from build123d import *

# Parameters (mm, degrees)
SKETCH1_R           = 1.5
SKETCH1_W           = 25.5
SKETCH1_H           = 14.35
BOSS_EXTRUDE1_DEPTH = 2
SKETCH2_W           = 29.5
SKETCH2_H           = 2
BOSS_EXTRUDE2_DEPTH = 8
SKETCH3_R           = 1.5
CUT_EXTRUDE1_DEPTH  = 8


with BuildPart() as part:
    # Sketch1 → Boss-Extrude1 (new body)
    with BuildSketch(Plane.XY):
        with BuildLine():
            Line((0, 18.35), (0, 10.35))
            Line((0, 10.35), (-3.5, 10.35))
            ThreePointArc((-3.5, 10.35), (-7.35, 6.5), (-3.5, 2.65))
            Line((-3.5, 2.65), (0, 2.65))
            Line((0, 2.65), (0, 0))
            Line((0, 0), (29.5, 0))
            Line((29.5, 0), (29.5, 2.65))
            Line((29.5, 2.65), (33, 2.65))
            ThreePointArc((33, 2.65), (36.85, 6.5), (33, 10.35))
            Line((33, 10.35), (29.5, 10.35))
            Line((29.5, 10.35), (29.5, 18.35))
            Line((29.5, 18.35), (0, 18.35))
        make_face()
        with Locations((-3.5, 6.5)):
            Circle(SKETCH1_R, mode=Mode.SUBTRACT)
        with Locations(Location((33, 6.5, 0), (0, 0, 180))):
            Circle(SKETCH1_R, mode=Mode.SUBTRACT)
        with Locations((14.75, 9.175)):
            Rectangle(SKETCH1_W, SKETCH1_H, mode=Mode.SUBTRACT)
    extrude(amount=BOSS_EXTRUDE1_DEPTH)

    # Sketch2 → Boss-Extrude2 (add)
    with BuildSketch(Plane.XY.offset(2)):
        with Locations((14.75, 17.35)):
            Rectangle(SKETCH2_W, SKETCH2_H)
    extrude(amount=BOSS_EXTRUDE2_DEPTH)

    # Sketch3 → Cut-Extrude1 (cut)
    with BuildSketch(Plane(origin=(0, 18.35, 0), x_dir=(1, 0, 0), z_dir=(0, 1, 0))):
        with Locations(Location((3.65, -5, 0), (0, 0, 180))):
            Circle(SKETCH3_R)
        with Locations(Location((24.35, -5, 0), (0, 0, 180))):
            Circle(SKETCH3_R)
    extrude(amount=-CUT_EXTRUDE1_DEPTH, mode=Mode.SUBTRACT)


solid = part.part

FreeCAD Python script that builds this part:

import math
import FreeCAD as App
import Part
import Sketcher
Q = App.Units.Quantity


def add_polygon(sketch, points):
    """Adds a closed chain of lines whose ends are joined by coincident constraints."""
    first, n = sketch.GeometryCount, len(points)
    for a, b in zip(points, points[1:] + points[:1]):
        sketch.addGeometry(Part.LineSegment(App.Vector(*a, 0), App.Vector(*b, 0)), False)
    for i in range(n):
        sketch.addConstraint(Sketcher.Constraint("Coincident", first + i, 2, first + (i + 1) % n, 1))

doc = App.newDocument("Part")
body = doc.addObject("PartDesign::Body", "Body")

# Sketch on XY plane
sketch1 = body.newObject("Sketcher::SketchObject", "Sketch")
sketch1.AttachmentSupport = (doc.getObject("XY_Plane"), [""])
sketch1.MapMode = "FlatFace"
sketch1.addGeometry(Part.LineSegment(App.Vector(0, 18.4, 0), App.Vector(0, 10.3, 0)), False)  # 0
sketch1.addGeometry(Part.LineSegment(App.Vector(0, 10.3, 0), App.Vector(-3.5, 10.3, 0)), False)  # 1
sketch1.addGeometry(Part.ArcOfCircle(Part.Circle(App.Vector(-3.5, 6.5, 0), App.Vector(0, 0, 1), 3.9), math.radians(90), math.radians(270)), False)  # 2
sketch1.addGeometry(Part.LineSegment(App.Vector(-3.5, 2.6, 0), App.Vector(0, 2.6, 0)), False)  # 3
sketch1.addGeometry(Part.LineSegment(App.Vector(0, 2.6, 0), App.Vector(0, 0, 0)), False)  # 4
sketch1.addGeometry(Part.LineSegment(App.Vector(0, 0, 0), App.Vector(29.5, 0, 0)), False)  # 5
sketch1.addGeometry(Part.LineSegment(App.Vector(29.5, 0, 0), App.Vector(29.5, 2.6, 0)), False)  # 6
sketch1.addGeometry(Part.LineSegment(App.Vector(29.5, 2.6, 0), App.Vector(33, 2.6, 0)), False)  # 7
sketch1.addGeometry(Part.ArcOfCircle(Part.Circle(App.Vector(33, 6.5, 0), App.Vector(0, 0, 1), 3.9), math.radians(-90), math.radians(90)), False)  # 8
sketch1.addGeometry(Part.LineSegment(App.Vector(33, 10.3, 0), App.Vector(29.5, 10.3, 0)), False)  # 9
sketch1.addGeometry(Part.LineSegment(App.Vector(29.5, 10.3, 0), App.Vector(29.5, 18.4, 0)), False)  # 10
sketch1.addGeometry(Part.LineSegment(App.Vector(29.5, 18.4, 0), App.Vector(0, 18.4, 0)), False)  # 11
sketch1.addGeometry(Part.Circle(App.Vector(-3.5, 6.5, 0), App.Vector(0, 0, 1), 1.5), False)  # 12
sketch1.addGeometry(Part.Circle(App.Vector(33, 6.5, 0), App.Vector(0, 0, 1), 1.5), False)  # 13
add_polygon(sketch1, [(27.5, 2), (2, 2), (2, 16.4), (27.5, 16.4)])  # lines 14-17
sketch1.addConstraint(Sketcher.Constraint("Coincident", 0, 2, 1, 1))
sketch1.addConstraint(Sketcher.Constraint("Tangent", 1, 2, 2, 1))
sketch1.addConstraint(Sketcher.Constraint("Tangent", 2, 2, 3, 1))
sketch1.addConstraint(Sketcher.Constraint("Coincident", 3, 2, 4, 1))
sketch1.addConstraint(Sketcher.Constraint("Coincident", 4, 2, 5, 1))
sketch1.addConstraint(Sketcher.Constraint("Coincident", 5, 2, 6, 1))
sketch1.addConstraint(Sketcher.Constraint("Coincident", 6, 2, 7, 1))
sketch1.addConstraint(Sketcher.Constraint("Tangent", 7, 2, 8, 1))
sketch1.addConstraint(Sketcher.Constraint("Tangent", 8, 2, 9, 1))
sketch1.addConstraint(Sketcher.Constraint("Coincident", 9, 2, 10, 1))
sketch1.addConstraint(Sketcher.Constraint("Coincident", 10, 2, 11, 1))
sketch1.addConstraint(Sketcher.Constraint("Coincident", 11, 2, 0, 1))
sketch1.addConstraint(Sketcher.Constraint("Vertical", 0))
sketch1.addConstraint(Sketcher.Constraint("Horizontal", 1))
sketch1.addConstraint(Sketcher.Constraint("Horizontal", 3))
sketch1.addConstraint(Sketcher.Constraint("Vertical", 4))
sketch1.addConstraint(Sketcher.Constraint("Horizontal", 5))
sketch1.addConstraint(Sketcher.Constraint("Vertical", 6))
sketch1.addConstraint(Sketcher.Constraint("Horizontal", 7))
sketch1.addConstraint(Sketcher.Constraint("Horizontal", 9))
sketch1.addConstraint(Sketcher.Constraint("Vertical", 10))
sketch1.addConstraint(Sketcher.Constraint("Horizontal", 11))
sketch1.addConstraint(Sketcher.Constraint("Horizontal", 14))
sketch1.addConstraint(Sketcher.Constraint("Vertical", 15))
sketch1.addConstraint(Sketcher.Constraint("Horizontal", 16))
sketch1.addConstraint(Sketcher.Constraint("Vertical", 17))
sketch1.addConstraint(Sketcher.Constraint("Coincident", 4, 2, -1, 1))
sketch1.addConstraint(Sketcher.Constraint("Coincident", 12, 3, 2, 3))
sketch1.addConstraint(Sketcher.Constraint("Coincident", 13, 3, 8, 3))
sketch1.addConstraint(Sketcher.Constraint("Equal", 2, 8))
sketch1.addConstraint(Sketcher.Constraint("Equal", 12, 13))
sketch1.addConstraint(Sketcher.Constraint("PointOnObject", 0, 2, -2))
sketch1.addConstraint(Sketcher.Constraint("Horizontal", 2, 3, 8, 3))
sketch1.addConstraint(Sketcher.Constraint("Vertical", 6, 2, 9, 2))
sketch1.addConstraint(Sketcher.Constraint("Equal", 3, 7))
sketch1.addConstraint(Sketcher.Constraint("Diameter", 12, Q("3 mm")))
sketch1.addConstraint(Sketcher.Constraint("DistanceY", 0, 2, 0, 1, Q("8 mm")))
sketch1.addConstraint(Sketcher.Constraint("Radius", 2, Q("3.85 mm")))
sketch1.addConstraint(Sketcher.Constraint("DistanceX", 1, 2, 1, 1, Q("3.5 mm")))
sketch1.addConstraint(Sketcher.Constraint("DistanceX", 5, 1, 5, 2, Q("29.5 mm")))
sketch1.addConstraint(Sketcher.Constraint("DistanceX", 14, 2, 14, 1, Q("25.5 mm")))
sketch1.addConstraint(Sketcher.Constraint("DistanceX", -1, 1, 14, 2, Q("2 mm")))
sketch1.addConstraint(Sketcher.Constraint("DistanceY", -1, 1, 14, 2, Q("2 mm")))
sketch1.addConstraint(Sketcher.Constraint("DistanceY", 15, 2, 11, 2, Q("2 mm")))
sketch1.addConstraint(Sketcher.Constraint("DistanceY", 4, 2, 4, 1, Q("2.65 mm")))
pad1 = body.newObject("PartDesign::Pad", "Pad")
pad1.Profile = sketch1
pad1.Length = 2

# Sketch on XY plane
sketch2 = body.newObject("Sketcher::SketchObject", "Sketch001")
sketch2.AttachmentSupport = (doc.getObject("XY_Plane"), [""])
sketch2.MapMode = "FlatFace"
sketch2.AttachmentOffset = App.Placement(App.Vector(0, 0, 2), App.Rotation())
add_polygon(sketch2, [(0, 18.4), (0, 16.4), (29.5, 16.4), (29.5, 18.4)])  # lines 0-3
sketch2.addConstraint(Sketcher.Constraint("Vertical", 0))
sketch2.addConstraint(Sketcher.Constraint("Horizontal", 1))
sketch2.addConstraint(Sketcher.Constraint("Vertical", 2))
sketch2.addConstraint(Sketcher.Constraint("Horizontal", 3))
sketch2.addConstraint(Sketcher.Constraint("PointOnObject", 0, 2, -2))
sketch2.addConstraint(Sketcher.Constraint("DistanceY", 0, 2, 0, 1, Q("2 mm")))
sketch2.addConstraint(Sketcher.Constraint("DistanceX", 1, 1, 1, 2, Q("29.5 mm")))
sketch2.addConstraint(Sketcher.Constraint("DistanceY", -1, 1, 0, 2, Q("16.35 mm")))
pad2 = body.newObject("PartDesign::Pad", "Pad001")
pad2.Profile = sketch2
pad2.Length = 8

# Sketch on XZ plane
sketch3 = body.newObject("Sketcher::SketchObject", "Sketch002")
sketch3.AttachmentSupport = (doc.getObject("XZ_Plane"), [""])
sketch3.MapMode = "FlatFace"
sketch3.AttachmentOffset = App.Placement(App.Vector(0, 0, -18.35), App.Rotation())
sketch3.addGeometry(Part.Circle(App.Vector(3.6, 5, 0), App.Vector(0, 0, 1), 1.5), False)
sketch3.addGeometry(Part.Circle(App.Vector(24.4, 5, 0), App.Vector(0, 0, 1), 1.5), False)
sketch3.addConstraint(Sketcher.Constraint("Equal", 0, 1))
sketch3.addConstraint(Sketcher.Constraint("Horizontal", 0, 3, 1, 3))
sketch3.addConstraint(Sketcher.Constraint("Diameter", 0, Q("3 mm")))
sketch3.addConstraint(Sketcher.Constraint("DistanceY", -1, 1, 0, 3, Q("5 mm")))
sketch3.addConstraint(Sketcher.Constraint("DistanceX", 0, 3, 1, 3, Q("20.7 mm")))
sketch3.addConstraint(Sketcher.Constraint("DistanceX", -1, 1, 0, 3, Q("3.65 mm")))
pocket1 = body.newObject("PartDesign::Pocket", "Pocket")
pocket1.Profile = sketch3
pocket1.Length = 8
pocket1.Reversed = True

doc.recompute()
